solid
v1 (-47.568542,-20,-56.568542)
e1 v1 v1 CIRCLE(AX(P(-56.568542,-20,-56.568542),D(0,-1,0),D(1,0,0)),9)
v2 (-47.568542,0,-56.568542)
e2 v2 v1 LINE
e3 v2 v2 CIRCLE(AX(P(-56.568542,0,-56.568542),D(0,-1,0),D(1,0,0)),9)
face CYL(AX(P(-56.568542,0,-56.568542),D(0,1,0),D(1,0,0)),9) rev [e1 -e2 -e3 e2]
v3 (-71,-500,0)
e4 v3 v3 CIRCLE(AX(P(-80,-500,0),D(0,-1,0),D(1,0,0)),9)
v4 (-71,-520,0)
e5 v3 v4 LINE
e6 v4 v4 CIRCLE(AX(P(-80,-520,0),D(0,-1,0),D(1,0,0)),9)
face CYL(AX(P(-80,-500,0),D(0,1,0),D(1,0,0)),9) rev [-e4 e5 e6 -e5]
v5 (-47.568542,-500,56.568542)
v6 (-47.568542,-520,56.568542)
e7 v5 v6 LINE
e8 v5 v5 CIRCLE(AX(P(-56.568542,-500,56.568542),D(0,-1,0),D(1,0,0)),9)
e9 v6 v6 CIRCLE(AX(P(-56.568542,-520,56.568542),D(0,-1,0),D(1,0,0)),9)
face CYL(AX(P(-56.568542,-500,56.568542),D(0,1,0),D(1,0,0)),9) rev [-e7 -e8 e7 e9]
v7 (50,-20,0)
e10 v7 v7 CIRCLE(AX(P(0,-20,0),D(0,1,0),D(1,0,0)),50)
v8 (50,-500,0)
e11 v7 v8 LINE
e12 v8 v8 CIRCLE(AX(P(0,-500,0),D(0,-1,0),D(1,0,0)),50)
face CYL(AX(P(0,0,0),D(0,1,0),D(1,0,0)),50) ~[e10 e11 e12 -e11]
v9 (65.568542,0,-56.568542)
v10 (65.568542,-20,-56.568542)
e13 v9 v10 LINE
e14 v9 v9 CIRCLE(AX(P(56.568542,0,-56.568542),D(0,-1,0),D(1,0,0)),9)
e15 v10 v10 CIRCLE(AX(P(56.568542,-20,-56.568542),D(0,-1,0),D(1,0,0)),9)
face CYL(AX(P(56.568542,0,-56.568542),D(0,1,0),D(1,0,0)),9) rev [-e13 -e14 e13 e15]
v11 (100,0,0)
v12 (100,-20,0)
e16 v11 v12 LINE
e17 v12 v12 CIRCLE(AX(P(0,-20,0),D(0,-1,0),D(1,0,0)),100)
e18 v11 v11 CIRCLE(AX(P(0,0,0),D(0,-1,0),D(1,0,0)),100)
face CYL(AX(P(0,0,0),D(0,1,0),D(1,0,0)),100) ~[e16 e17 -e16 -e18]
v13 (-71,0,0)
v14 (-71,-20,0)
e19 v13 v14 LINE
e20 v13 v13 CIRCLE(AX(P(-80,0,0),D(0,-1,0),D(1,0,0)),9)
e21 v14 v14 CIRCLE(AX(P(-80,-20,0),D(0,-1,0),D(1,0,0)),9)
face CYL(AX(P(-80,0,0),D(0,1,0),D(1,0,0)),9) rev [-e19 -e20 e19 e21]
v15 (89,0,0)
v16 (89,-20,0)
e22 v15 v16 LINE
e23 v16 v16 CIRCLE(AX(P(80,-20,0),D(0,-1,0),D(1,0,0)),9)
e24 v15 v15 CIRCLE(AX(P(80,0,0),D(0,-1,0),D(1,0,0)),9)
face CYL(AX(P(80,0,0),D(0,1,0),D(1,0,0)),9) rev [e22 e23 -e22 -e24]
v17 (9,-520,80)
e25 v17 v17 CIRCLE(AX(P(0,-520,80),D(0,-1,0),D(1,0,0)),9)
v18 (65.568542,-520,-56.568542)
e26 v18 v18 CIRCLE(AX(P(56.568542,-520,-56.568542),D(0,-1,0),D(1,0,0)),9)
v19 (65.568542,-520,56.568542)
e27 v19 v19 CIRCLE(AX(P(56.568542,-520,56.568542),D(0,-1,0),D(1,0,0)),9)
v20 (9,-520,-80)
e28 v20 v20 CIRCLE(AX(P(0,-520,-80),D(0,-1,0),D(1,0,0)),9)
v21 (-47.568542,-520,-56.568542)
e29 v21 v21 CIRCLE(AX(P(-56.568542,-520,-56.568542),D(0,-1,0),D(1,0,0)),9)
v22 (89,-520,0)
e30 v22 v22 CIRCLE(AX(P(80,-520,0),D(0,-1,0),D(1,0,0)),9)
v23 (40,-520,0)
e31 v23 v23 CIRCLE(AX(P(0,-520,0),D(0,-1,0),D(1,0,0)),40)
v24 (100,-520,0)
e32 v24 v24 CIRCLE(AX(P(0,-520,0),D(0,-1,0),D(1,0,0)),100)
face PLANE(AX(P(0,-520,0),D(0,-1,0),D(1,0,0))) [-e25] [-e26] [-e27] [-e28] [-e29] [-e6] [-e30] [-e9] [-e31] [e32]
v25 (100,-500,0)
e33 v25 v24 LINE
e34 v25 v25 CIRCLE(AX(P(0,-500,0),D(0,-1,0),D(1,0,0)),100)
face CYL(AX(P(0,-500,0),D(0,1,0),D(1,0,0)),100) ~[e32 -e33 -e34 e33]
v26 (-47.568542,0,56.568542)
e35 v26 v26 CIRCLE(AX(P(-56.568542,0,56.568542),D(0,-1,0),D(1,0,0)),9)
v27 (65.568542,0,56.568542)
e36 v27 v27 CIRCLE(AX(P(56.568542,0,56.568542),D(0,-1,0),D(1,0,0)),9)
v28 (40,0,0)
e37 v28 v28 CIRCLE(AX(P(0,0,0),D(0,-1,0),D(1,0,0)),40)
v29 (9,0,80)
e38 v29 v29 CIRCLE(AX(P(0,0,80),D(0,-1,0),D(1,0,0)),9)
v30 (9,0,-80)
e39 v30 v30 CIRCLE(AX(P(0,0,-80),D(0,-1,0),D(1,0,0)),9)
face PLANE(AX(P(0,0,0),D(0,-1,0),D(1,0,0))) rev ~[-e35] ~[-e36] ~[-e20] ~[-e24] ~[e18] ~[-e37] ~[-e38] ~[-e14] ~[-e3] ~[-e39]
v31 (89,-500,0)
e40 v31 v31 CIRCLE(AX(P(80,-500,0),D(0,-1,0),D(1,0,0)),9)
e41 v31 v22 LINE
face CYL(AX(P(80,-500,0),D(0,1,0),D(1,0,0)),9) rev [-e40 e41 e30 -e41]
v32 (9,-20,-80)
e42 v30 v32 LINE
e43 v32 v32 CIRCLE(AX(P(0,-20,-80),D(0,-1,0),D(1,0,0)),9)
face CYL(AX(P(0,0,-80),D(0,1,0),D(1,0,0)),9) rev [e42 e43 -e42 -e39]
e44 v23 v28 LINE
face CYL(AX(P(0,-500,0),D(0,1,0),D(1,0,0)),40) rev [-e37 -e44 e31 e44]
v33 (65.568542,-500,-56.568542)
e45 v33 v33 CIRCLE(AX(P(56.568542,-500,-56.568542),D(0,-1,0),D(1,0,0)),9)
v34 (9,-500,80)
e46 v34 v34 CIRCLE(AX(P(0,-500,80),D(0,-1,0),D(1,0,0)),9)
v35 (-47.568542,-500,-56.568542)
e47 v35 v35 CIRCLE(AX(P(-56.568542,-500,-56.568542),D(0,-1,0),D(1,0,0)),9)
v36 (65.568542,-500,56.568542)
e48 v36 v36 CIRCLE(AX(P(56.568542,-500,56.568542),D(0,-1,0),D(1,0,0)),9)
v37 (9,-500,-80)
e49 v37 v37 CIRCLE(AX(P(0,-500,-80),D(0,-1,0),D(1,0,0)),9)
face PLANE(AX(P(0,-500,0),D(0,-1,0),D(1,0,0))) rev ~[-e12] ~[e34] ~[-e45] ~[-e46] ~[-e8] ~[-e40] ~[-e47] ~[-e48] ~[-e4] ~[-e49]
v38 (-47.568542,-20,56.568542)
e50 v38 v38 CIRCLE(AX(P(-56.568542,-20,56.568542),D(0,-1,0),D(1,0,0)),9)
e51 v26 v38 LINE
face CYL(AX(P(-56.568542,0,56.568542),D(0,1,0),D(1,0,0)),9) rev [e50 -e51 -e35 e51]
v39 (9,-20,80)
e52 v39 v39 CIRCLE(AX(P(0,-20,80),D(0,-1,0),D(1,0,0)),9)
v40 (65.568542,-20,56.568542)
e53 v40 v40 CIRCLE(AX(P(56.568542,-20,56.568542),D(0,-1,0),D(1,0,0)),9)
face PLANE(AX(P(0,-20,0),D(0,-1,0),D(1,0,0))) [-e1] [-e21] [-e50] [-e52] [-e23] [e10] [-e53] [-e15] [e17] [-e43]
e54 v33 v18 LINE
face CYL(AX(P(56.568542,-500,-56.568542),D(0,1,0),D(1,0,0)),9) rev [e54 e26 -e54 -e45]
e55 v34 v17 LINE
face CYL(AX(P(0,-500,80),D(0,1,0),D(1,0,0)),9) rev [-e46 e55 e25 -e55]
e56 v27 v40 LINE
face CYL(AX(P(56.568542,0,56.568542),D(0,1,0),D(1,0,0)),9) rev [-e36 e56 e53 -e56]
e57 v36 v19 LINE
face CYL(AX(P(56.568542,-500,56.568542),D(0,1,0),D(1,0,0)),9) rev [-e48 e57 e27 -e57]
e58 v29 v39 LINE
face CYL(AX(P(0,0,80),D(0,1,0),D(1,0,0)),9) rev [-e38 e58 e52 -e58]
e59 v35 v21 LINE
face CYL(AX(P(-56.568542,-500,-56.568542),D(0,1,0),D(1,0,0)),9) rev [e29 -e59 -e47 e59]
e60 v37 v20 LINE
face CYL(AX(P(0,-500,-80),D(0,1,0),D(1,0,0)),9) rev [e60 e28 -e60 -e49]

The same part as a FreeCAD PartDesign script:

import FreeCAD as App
import Part
import Sketcher

V = App.Vector
Q = App.Units.Quantity

doc = App.newDocument("Part")
body = doc.addObject("PartDesign::Body", "Body")

sketch1 = body.newObject("Sketcher::SketchObject", "Sketch")
sketch1.AttachmentSupport = (doc.getObject("XZ_Plane"), [""])
sketch1.MapMode = "FlatFace"
sketch1.addGeometry(Part.Circle(V(0, 0, 0), V(0, 0, 1), 100), False)
sketch1.addGeometry(Part.Circle(V(-56.568542, -56.568542, 0), V(0, 0, 1), 9), False)
sketch1.addGeometry(Part.Circle(V(0, -80, 0), V(0, 0, 1), 9), False)
sketch1.addGeometry(Part.Circle(V(56.568542, -56.568542, 0), V(0, 0, 1), 9), False)
sketch1.addGeometry(Part.Circle(V(-80, 0, 0), V(0, 0, 1), 9), False)
sketch1.addGeometry(Part.Circle(V(-56.568542, 56.568542, 0), V(0, 0, 1), 9), False)
sketch1.addGeometry(Part.Circle(V(0, 0, 0), V(0, 0, 1), 40), False)
sketch1.addGeometry(Part.Circle(V(80, 0, 0), V(0, 0, 1), 9), False)
sketch1.addGeometry(Part.Circle(V(0, 80, 0), V(0, 0, 1), 9), False)
sketch1.addGeometry(Part.Circle(V(56.568542, 56.568542, 0), V(0, 0, 1), 9), False)
sketch1.addConstraint(Sketcher.Constraint("Coincident", 0, 3, -1, 1))
sketch1.addConstraint(Sketcher.Constraint("Coincident", 6, 3, -1, 1))
sketch1.addConstraint(Sketcher.Constraint("Equal", 1, 2))
sketch1.addConstraint(Sketcher.Constraint("Equal", 2, 3))
sketch1.addConstraint(Sketcher.Constraint("Equal", 3, 4))
sketch1.addConstraint(Sketcher.Constraint("Equal", 4, 5))
sketch1.addConstraint(Sketcher.Constraint("Equal", 5, 7))
sketch1.addConstraint(Sketcher.Constraint("Equal", 7, 8))
sketch1.addConstraint(Sketcher.Constraint("Equal", 8, 9))
sketch1.addConstraint(Sketcher.Constraint("Symmetric", 3, 3, 5, 3, -1, 1))
sketch1.addConstraint(Sketcher.Constraint("Symmetric", 4, 3, 7, 3, -1, 1))
sketch1.addConstraint(Sketcher.Constraint("Symmetric", 2, 3, 8, 3, -1, 1))
sketch1.addConstraint(Sketcher.Constraint("Symmetric", 1, 3, 9, 3, -1, 1))
sketch1.addConstraint(Sketcher.Constraint("Symmetric", 1, 3, 3, 3, -2))
sketch1.addConstraint(Sketcher.Constraint("PointOnObject", 2, 3, -2))
sketch1.addConstraint(Sketcher.Constraint("PointOnObject", 4, 3, -1))
sketch1.addConstraint(Sketcher.Constraint("Diameter", 0, Q("200 mm")))
sketch1.addConstraint(Sketcher.Constraint("Diameter", 1, Q("18 mm")))
sketch1.addConstraint(Sketcher.Constraint("Diameter", 6, Q("80 mm")))
sketch1.addConstraint(Sketcher.Constraint("DistanceY", 2, 3, -1, 1, Q("80 mm")))
sketch1.addConstraint(Sketcher.Constraint("DistanceX", 4, 3, -1, 1, Q("80 mm")))
sketch1.addConstraint(Sketcher.Constraint("DistanceX", 1, 3, -1, 1, Q("56.568542 mm")))
sketch1.addConstraint(Sketcher.Constraint("DistanceY", 1, 3, -1, 1, Q("56.568542 mm")))
pad1 = body.newObject("PartDesign::Pad", "Pad")
pad1.Profile = sketch1
pad1.Length = 20

sketch2 = body.newObject("Sketcher::SketchObject", "Sketch001")
sketch2.AttachmentSupport = (doc.getObject("XZ_Plane"), [""])
sketch2.MapMode = "FlatFace"
sketch2.addGeometry(Part.Circle(V(0, 0, 0), V(0, 0, 1), 50), False)
sketch2.addGeometry(Part.Circle(V(0, 0, 0), V(0, 0, 1), 40), False)
sketch2.addConstraint(Sketcher.Constraint("Coincident", 0, 3, -1, 1))
sketch2.addConstraint(Sketcher.Constraint("Coincident", 1, 3, -1, 1))
sketch2.addConstraint(Sketcher.Constraint("Diameter", 0, Q("100 mm")))
sketch2.addConstraint(Sketcher.Constraint("Diameter", 1, Q("80 mm")))
pad2 = body.newObject("PartDesign::Pad", "Pad001")
pad2.Profile = sketch2
pad2.Length = 500

sketch3 = body.newObject("Sketcher::SketchObject", "Sketch002")
sketch3.AttachmentSupport = (doc.getObject("XZ_Plane"), [""])
sketch3.MapMode = "FlatFace"
sketch3.AttachmentOffset = App.Placement(V(0, 0, 500), App.Rotation())
sketch3.addGeometry(Part.Circle(V(0, 0, 0), V(0, 0, 1), 100), False)
sketch3.addGeometry(Part.Circle(V(-56.568542, -56.568542, 0), V(0, 0, 1), 9), False)
sketch3.addGeometry(Part.Circle(V(0, -80, 0), V(0, 0, 1), 9), False)
sketch3.addGeometry(Part.Circle(V(56.568542, -56.568542, 0), V(0, 0, 1), 9), False)
sketch3.addGeometry(Part.Circle(V(-80, 0, 0), V(0, 0, 1), 9), False)
sketch3.addGeometry(Part.Circle(V(-56.568542, 56.568542, 0), V(0, 0, 1), 9), False)
sketch3.addGeometry(Part.Circle(V(0, 0, 0), V(0, 0, 1), 40), False)
sketch3.addGeometry(Part.Circle(V(80, 0, 0), V(0, 0, 1), 9), False)
sketch3.addGeometry(Part.Circle(V(0, 80, 0), V(0, 0, 1), 9), False)
sketch3.addGeometry(Part.Circle(V(56.568542, 56.568542, 0), V(0, 0, 1), 9), False)
sketch3.addConstraint(Sketcher.Constraint("Coincident", 0, 3, -1, 1))
sketch3.addConstraint(Sketcher.Constraint("Coincident", 6, 3, -1, 1))
sketch3.addConstraint(Sketcher.Constraint("Equal", 1, 2))
sketch3.addConstraint(Sketcher.Constraint("Equal", 2, 3))
sketch3.addConstraint(Sketcher.Constraint("Equal", 3, 4))
sketch3.addConstraint(Sketcher.Constraint("Equal", 4, 5))
sketch3.addConstraint(Sketcher.Constraint("Equal", 5, 7))
sketch3.addConstraint(Sketcher.Constraint("Equal", 7, 8))
sketch3.addConstraint(Sketcher.Constraint("Equal", 8, 9))
sketch3.addConstraint(Sketcher.Constraint("Symmetric", 3, 3, 5, 3, -1, 1))
sketch3.addConstraint(Sketcher.Constraint("Symmetric", 4, 3, 7, 3, -1, 1))
sketch3.addConstraint(Sketcher.Constraint("Symmetric", 2, 3, 8, 3, -1, 1))
sketch3.addConstraint(Sketcher.Constraint("Symmetric", 1, 3, 9, 3, -1, 1))
sketch3.addConstraint(Sketcher.Constraint("Symmetric", 1, 3, 3, 3, -2))
sketch3.addConstraint(Sketcher.Constraint("PointOnObject", 2, 3, -2))
sketch3.addConstraint(Sketcher.Constraint("PointOnObject", 4, 3, -1))
sketch3.addConstraint(Sketcher.Constraint("Diameter", 0, Q("200 mm")))
sketch3.addConstraint(Sketcher.Constraint("Diameter", 1, Q("18 mm")))
sketch3.addConstraint(Sketcher.Constraint("Diameter", 6, Q("80 mm")))
sketch3.addConstraint(Sketcher.Constraint("DistanceY", 2, 3, -1, 1, Q("80 mm")))
sketch3.addConstraint(Sketcher.Constraint("DistanceX", 4, 3, -1, 1, Q("80 mm")))
sketch3.addConstraint(Sketcher.Constraint("DistanceX", 1, 3, -1, 1, Q("56.568542 mm")))
sketch3.addConstraint(Sketcher.Constraint("DistanceY", 1, 3, -1, 1, Q("56.568542 mm")))
pad3 = body.newObject("PartDesign::Pad", "Pad002")
pad3.Profile = sketch3
pad3.Length = 20

doc.recompute()
